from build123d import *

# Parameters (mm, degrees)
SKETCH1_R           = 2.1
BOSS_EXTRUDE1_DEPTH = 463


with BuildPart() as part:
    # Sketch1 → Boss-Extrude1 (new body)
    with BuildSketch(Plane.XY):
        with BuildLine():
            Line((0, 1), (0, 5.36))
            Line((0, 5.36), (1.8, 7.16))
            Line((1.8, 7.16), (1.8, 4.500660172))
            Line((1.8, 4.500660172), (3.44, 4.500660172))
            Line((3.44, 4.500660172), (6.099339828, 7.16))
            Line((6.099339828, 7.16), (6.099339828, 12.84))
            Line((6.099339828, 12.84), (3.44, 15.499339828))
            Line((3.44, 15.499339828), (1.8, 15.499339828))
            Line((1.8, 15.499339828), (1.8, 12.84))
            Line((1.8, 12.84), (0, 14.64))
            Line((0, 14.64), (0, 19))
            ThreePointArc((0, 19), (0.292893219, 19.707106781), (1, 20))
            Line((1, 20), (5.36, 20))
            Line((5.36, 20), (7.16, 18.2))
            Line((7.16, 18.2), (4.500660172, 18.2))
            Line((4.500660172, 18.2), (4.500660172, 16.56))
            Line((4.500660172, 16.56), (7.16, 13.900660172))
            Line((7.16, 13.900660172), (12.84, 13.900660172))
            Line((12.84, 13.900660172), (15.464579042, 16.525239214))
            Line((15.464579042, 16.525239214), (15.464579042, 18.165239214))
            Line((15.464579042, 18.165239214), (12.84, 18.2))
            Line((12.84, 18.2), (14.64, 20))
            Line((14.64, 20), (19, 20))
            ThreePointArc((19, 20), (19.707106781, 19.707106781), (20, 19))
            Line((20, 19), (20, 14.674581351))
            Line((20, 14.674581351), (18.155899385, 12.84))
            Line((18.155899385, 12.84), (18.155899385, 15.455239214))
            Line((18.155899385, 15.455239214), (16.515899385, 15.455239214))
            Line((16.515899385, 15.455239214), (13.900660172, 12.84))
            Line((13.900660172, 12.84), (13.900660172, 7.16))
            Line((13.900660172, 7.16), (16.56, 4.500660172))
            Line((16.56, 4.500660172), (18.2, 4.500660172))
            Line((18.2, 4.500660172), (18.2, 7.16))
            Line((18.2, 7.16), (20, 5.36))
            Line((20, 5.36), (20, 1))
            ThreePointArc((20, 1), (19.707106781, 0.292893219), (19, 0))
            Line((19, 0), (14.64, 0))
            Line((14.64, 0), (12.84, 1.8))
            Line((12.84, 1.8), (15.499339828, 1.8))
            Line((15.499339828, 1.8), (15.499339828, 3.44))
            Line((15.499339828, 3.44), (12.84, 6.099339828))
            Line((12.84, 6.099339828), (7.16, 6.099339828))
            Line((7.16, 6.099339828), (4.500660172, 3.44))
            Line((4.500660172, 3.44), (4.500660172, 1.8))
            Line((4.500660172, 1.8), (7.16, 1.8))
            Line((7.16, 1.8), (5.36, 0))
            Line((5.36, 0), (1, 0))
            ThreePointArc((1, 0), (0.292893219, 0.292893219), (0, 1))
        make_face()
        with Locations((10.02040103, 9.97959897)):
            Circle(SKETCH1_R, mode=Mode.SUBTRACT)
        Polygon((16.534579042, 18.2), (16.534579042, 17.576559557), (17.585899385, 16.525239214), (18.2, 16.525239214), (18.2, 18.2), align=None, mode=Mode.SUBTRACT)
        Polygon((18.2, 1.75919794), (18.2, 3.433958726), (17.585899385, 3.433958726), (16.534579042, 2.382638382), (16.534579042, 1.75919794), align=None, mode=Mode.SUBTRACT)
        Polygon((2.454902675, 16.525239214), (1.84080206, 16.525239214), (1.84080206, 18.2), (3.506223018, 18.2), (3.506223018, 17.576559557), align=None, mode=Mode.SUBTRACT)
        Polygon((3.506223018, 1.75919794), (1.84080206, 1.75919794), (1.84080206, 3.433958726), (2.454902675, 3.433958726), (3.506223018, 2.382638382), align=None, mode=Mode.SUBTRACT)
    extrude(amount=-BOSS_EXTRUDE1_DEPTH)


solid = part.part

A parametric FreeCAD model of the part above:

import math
import FreeCAD as App
import Part
import Sketcher

V = App.Vector
Q = App.Units.Quantity


def add_polygon(sketch, points):
    """Adds a closed chain of lines whose ends are joined by coincident constraints."""
    first, n = sketch.GeometryCount, len(points)
    for a, b in zip(points, points[1:] + points[:1]):
        sketch.addGeometry(Part.LineSegment(App.Vector(*a, 0), App.Vector(*b, 0)), False)
    for i in range(n):
        sketch.addConstraint(Sketcher.Constraint("Coincident", first + i, 2, first + (i + 1) % n, 1))

doc = App.newDocument("Part")
params = doc.addObject("Spreadsheet::Sheet", "Params")
for row, (alias, value) in enumerate([
    ("sketch1_radius", "1 mm"),
    ("sketch1_diameter", "4.2 mm"),
    ("sketch1_width", "4.36 mm"),
    ("sketch1_width2", "5.68 mm"),
    ("sketch1_width3", "1.64 mm"),
    ("pad1_length", "463 mm"),
], start=1):
    params.set(f"A{row}", alias)
    params.set(f"B{row}", "=" + value)
    params.setAlias(f"B{row}", alias)

body = doc.addObject("PartDesign::Body", "Body")

# Sketch on XY plane
sketch1 = body.newObject("Sketcher::SketchObject", "Sketch")
sketch1.AttachmentSupport = (doc.getObject("XY_Plane"), [""])
sketch1.MapMode = "FlatFace"
sketch1.addGeometry(Part.LineSegment(V(0, 5.36, 0), V(0, 1, 0)), False)  # 0
sketch1.addGeometry(Part.ArcOfCircle(Part.Circle(V(1, 1, 0), V(0, 0, 1), 1), math.radians(-180), math.radians(-90)), False)  # 1
sketch1.addGeometry(Part.LineSegment(V(1, 0, 0), V(5.36, 0, 0)), False)  # 2
sketch1.addGeometry(Part.LineSegment(V(5.36, 0, 0), V(7.16, 1.8, 0)), False)  # 3
sketch1.addGeometry(Part.LineSegment(V(7.16, 1.8, 0), V(4.50066, 1.8, 0)), False)  # 4
sketch1.addGeometry(Part.LineSegment(V(4.50066, 1.8, 0), V(4.50066, 3.44, 0)), False)  # 5
sketch1.addGeometry(Part.LineSegment(V(4.50066, 3.44, 0), V(7.16, 6.09934, 0)), False)  # 6
sketch1.addGeometry(Part.LineSegment(V(7.16, 6.09934, 0), V(12.84, 6.09934, 0)), False)  # 7
sketch1.addGeometry(Part.LineSegment(V(12.84, 6.09934, 0), V(15.49934, 3.44, 0)), False)  # 8
sketch1.addGeometry(Part.LineSegment(V(15.49934, 3.44, 0), V(15.49934, 1.8, 0)), False)  # 9
sketch1.addGeometry(Part.LineSegment(V(15.49934, 1.8, 0), V(12.84, 1.8, 0)), False)  # 10
sketch1.addGeometry(Part.LineSegment(V(12.84, 1.8, 0), V(14.64, 0, 0)), False)  # 11
sketch1.addGeometry(Part.LineSegment(V(14.64, 0, 0), V(19, 0, 0)), False)  # 12
sketch1.addGeometry(Part.ArcOfCircle(Part.Circle(V(19, 1, 0), V(0, 0, 1), 1), math.radians(-90), math.radians(0)), False)  # 13
sketch1.addGeometry(Part.LineSegment(V(20, 1, 0), V(20, 5.36, 0)), False)  # 14
sketch1.addGeometry(Part.LineSegment(V(20, 5.36, 0), V(18.2, 7.16, 0)), False)  # 15
sketch1.addGeometry(Part.LineSegment(V(18.2, 7.16, 0), V(18.2, 4.50066, 0)), False)  # 16
sketch1.addGeometry(Part.LineSegment(V(18.2, 4.50066, 0), V(16.56, 4.50066, 0)), False)  # 17
sketch1.addGeometry(Part.LineSegment(V(16.56, 4.50066, 0), V(13.90066, 7.16, 0)), False)  # 18
sketch1.addGeometry(Part.LineSegment(V(13.90066, 7.16, 0), V(13.90066, 12.84, 0)), False)  # 19
sketch1.addGeometry(Part.LineSegment(V(13.90066, 12.84, 0), V(16.515899, 15.455239, 0)), False)  # 20
sketch1.addGeometry(Part.LineSegment(V(16.515899, 15.455239, 0), V(18.155899, 15.455239, 0)), False)  # 21
sketch1.addGeometry(Part.LineSegment(V(18.155899, 15.455239, 0), V(18.155899, 12.84, 0)), False)  # 22
sketch1.addGeometry(Part.LineSegment(V(18.155899, 12.84, 0), V(20, 14.674581, 0)), False)  # 23
sketch1.addGeometry(Part.LineSegment(V(20, 14.674581, 0), V(20, 19, 0)), False)  # 24
sketch1.addGeometry(Part.ArcOfCircle(Part.Circle(V(19, 19, 0), V(0, 0, 1), 1), math.radians(0), math.radians(90)), False)  # 25
sketch1.addGeometry(Part.LineSegment(V(19, 20, 0), V(14.64, 20, 0)), False)  # 26
sketch1.addGeometry(Part.LineSegment(V(14.64, 20, 0), V(12.84, 18.2, 0)), False)  # 27
sketch1.addGeometry(Part.LineSegment(V(12.84, 18.2, 0), V(15.464579, 18.165239, 0)), False)  # 28
sketch1.addGeometry(Part.LineSegment(V(15.464579, 18.165239, 0), V(15.464579, 16.525239, 0)), False)  # 29
sketch1.addGeometry(Part.LineSegment(V(15.464579, 16.525239, 0), V(12.84, 13.90066, 0)), False)  # 30
sketch1.addGeometry(Part.LineSegment(V(12.84, 13.90066, 0), V(7.16, 13.90066, 0)), False)  # 31
sketch1.addGeometry(Part.LineSegment(V(7.16, 13.90066, 0), V(4.50066, 16.56, 0)), False)  # 32
sketch1.addGeometry(Part.LineSegment(V(4.50066, 16.56, 0), V(4.50066, 18.2, 0)), False)  # 33
sketch1.addGeometry(Part.LineSegment(V(4.50066, 18.2, 0), V(7.16, 18.2, 0)), False)  # 34
sketch1.addGeometry(Part.LineSegment(V(7.16, 18.2, 0), V(5.36, 20, 0)), False)  # 35
sketch1.addGeometry(Part.LineSegment(V(5.36, 20, 0), V(1, 20, 0)), False)  # 36
sketch1.addGeometry(Part.ArcOfCircle(Part.Circle(V(1, 19, 0), V(0, 0, 1), 1), math.radians(90), math.radians(180)), False)  # 37
sketch1.addGeometry(Part.LineSegment(V(0, 19, 0), V(0, 14.64, 0)), False)  # 38
sketch1.addGeometry(Part.LineSegment(V(0, 14.64, 0), V(1.8, 12.84, 0)), False)  # 39
sketch1.addGeometry(Part.LineSegment(V(1.8, 12.84, 0), V(1.8, 15.49934, 0)), False)  # 40
sketch1.addGeometry(Part.LineSegment(V(1.8, 15.49934, 0), V(3.44, 15.49934, 0)), False)  # 41
sketch1.addGeometry(Part.LineSegment(V(3.44, 15.49934, 0), V(6.09934, 12.84, 0)), False)  # 42
sketch1.addGeometry(Part.LineSegment(V(6.09934, 12.84, 0), V(6.09934, 7.16, 0)), False)  # 43
sketch1.addGeometry(Part.LineSegment(V(6.09934, 7.16, 0), V(3.44, 4.50066, 0)), False)  # 44
sketch1.addGeometry(Part.LineSegment(V(3.44, 4.50066, 0), V(1.8, 4.50066, 0)), False)  # 45
sketch1.addGeometry(Part.LineSegment(V(1.8, 4.50066, 0), V(1.8, 7.16, 0)), False)  # 46
sketch1.addGeometry(Part.LineSegment(V(1.8, 7.16, 0), V(0, 5.36, 0)), False)  # 47
add_polygon(sketch1, [(18.2, 1.759198), (16.534579, 1.759198), (16.534579, 2.382638), (17.585899, 3.433959), (18.2, 3.433959)])  # lines 48-52
add_polygon(sketch1, [(3.506223, 1.759198), (1.840802, 1.759198), (1.840802, 3.433959), (2.454903, 3.433959), (3.506223, 2.382638)])  # lines 53-57
sketch1.addGeometry(Part.Circle(V(10.020401, 9.979599, 0), V(0, 0, 1), 2.1), False)  # 58
add_polygon(sketch1, [(16.534579, 18.2), (18.2, 18.2), (18.2, 16.525239), (17.585899, 16.525239), (16.534579, 17.57656)])  # lines 59-63
add_polygon(sketch1, [(2.454903, 16.525239), (1.840802, 16.525239), (1.840802, 18.2), (3.506223, 18.2), (3.506223, 17.57656)])  # lines 64-68
sketch1.addConstraint([
    Sketcher.Constraint("Tangent", 0, 2, 1, 1),
    Sketcher.Constraint("Tangent", 1, 2, 2, 1),
    Sketcher.Constraint("Coincident", 2, 2, 3, 1),
    Sketcher.Constraint("Coincident", 3, 2, 4, 1),
    Sketcher.Constraint("Coincident", 4, 2, 5, 1),
    Sketcher.Constraint("Coincident", 5, 2, 6, 1),
    Sketcher.Constraint("Coincident", 6, 2, 7, 1),
    Sketcher.Constraint("Coincident", 7, 2, 8, 1),
    Sketcher.Constraint("Coincident", 8, 2, 9, 1),
    Sketcher.Constraint("Coincident", 9, 2, 10, 1),
    Sketcher.Constraint("Coincident", 10, 2, 11, 1),
    Sketcher.Constraint("Coincident", 11, 2, 12, 1),
    Sketcher.Constraint("Tangent", 12, 2, 13, 1),
    Sketcher.Constraint("Tangent", 13, 2, 14, 1),
    Sketcher.Constraint("Coincident", 14, 2, 15, 1),
    Sketcher.Constraint("Coincident", 15, 2, 16, 1),
    Sketcher.Constraint("Coincident", 16, 2, 17, 1),
    Sketcher.Constraint("Coincident", 17, 2, 18, 1),
    Sketcher.Constraint("Coincident", 18, 2, 19, 1),
    Sketcher.Constraint("Coincident", 19, 2, 20, 1),
    Sketcher.Constraint("Coincident", 20, 2, 21, 1),
    Sketcher.Constraint("Coincident", 21, 2, 22, 1),
    Sketcher.Constraint("Coincident", 22, 2, 23, 1),
    Sketcher.Constraint("Coincident", 23, 2, 24, 1),
    Sketcher.Constraint("Tangent", 24, 2, 25, 1),
    Sketcher.Constraint("Tangent", 25, 2, 26, 1),
    Sketcher.Constraint("Coincident", 26, 2, 27, 1),
    Sketcher.Constraint("Coincident", 27, 2, 28, 1),
    Sketcher.Constraint("Coincident", 28, 2, 29, 1),
    Sketcher.Constraint("Coincident", 29, 2, 30, 1),
    Sketcher.Constraint("Coincident", 30, 2, 31, 1),
    Sketcher.Constraint("Coincident", 31, 2, 32, 1),
    Sketcher.Constraint("Coincident", 32, 2, 33, 1),
    Sketcher.Constraint("Coincident", 33, 2, 34, 1),
    Sketcher.Constraint("Coincident", 34, 2, 35, 1),
    Sketcher.Constraint("Coincident", 35, 2, 36, 1),
    Sketcher.Constraint("Tangent", 36, 2, 37, 1),
    Sketcher.Constraint("Tangent", 37, 2, 38, 1),
    Sketcher.Constraint("Coincident", 38, 2, 39, 1),
    Sketcher.Constraint("Coincident", 39, 2, 40, 1),
    Sketcher.Constraint("Coincident", 40, 2, 41, 1),
    Sketcher.Constraint("Coincident", 41, 2, 42, 1),
    Sketcher.Constraint("Coincident", 42, 2, 43, 1),
    Sketcher.Constraint("Coincident", 43, 2, 44, 1),
    Sketcher.Constraint("Coincident", 44, 2, 45, 1),
    Sketcher.Constraint("Coincident", 45, 2, 46, 1),
    Sketcher.Constraint("Coincident", 46, 2, 47, 1),
    Sketcher.Constraint("Coincident", 47, 2, 0, 1),
    Sketcher.Constraint("Vertical", 0),
    Sketcher.Constraint("Horizontal", 2),
    Sketcher.Constraint("Horizontal", 4),
    Sketcher.Constraint("Vertical", 5),
    Sketcher.Constraint("Horizontal", 7),
    Sketcher.Constraint("Vertical", 9),
    Sketcher.Constraint("Horizontal", 10),
    Sketcher.Constraint("Horizontal", 12),
    Sketcher.Constraint("Vertical", 14),
    Sketcher.Constraint("Vertical", 16),
    Sketcher.Constraint("Horizontal", 17),
    Sketcher.Constraint("Vertical", 19),
    Sketcher.Constraint("Horizontal", 21),
    Sketcher.Constraint("Vertical", 22),
    Sketcher.Constraint("Vertical", 24),
    Sketcher.Constraint("Horizontal", 26),
    Sketcher.Constraint("Vertical", 29),
    Sketcher.Constraint("Horizontal", 31),
    Sketcher.Constraint("Vertical", 33),
    Sketcher.Constraint("Horizontal", 34),
    Sketcher.Constraint("Horizontal", 36),
    Sketcher.Constraint("Vertical", 38),
    Sketcher.Constraint("Vertical", 40),
    Sketcher.Constraint("Horizontal", 41),
    Sketcher.Constraint("Vertical", 43),
    Sketcher.Constraint("Horizontal", 45),
    Sketcher.Constraint("Vertical", 46),
    Sketcher.Constraint("Horizontal", 48),
    Sketcher.Constraint("Vertical", 49),
    Sketcher.Constraint("Horizontal", 51),
    Sketcher.Constraint("Vertical", 52),
    Sketcher.Constraint("Horizontal", 53),
    Sketcher.Constraint("Vertical", 54),
    Sketcher.Constraint("Horizontal", 55),
    Sketcher.Constraint("Vertical", 57),
    Sketcher.Constraint("Horizontal", 59),
    Sketcher.Constraint("Vertical", 60),
    Sketcher.Constraint("Horizontal", 61),
    Sketcher.Constraint("Vertical", 63),
    Sketcher.Constraint("Horizontal", 64),
    Sketcher.Constraint("Vertical", 65),
    Sketcher.Constraint("Horizontal", 66),
    Sketcher.Constraint("Vertical", 67),
    Sketcher.Constraint("Equal", 1, 13),
    Sketcher.Constraint("Equal", 13, 25),
    Sketcher.Constraint("Equal", 25, 37),
    Sketcher.Constraint("PointOnObject", 0, 2, -2),
    Sketcher.Constraint("PointOnObject", 1, 2, -1),
    Sketcher.Constraint("PointOnObject", 11, 2, -1),
    Sketcher.Constraint("PointOnObject", 37, 2, -2),
    Sketcher.Constraint("Parallel", 3, 6),
    Sketcher.Constraint("Perpendicular", 6, 8),
    Sketcher.Constraint("Parallel", 8, 11),
    Sketcher.Constraint("Parallel", 11, 15),
    Sketcher.Constraint("Parallel", 15, 18),
    Sketcher.Constraint("Perpendicular", 18, 20),
    Sketcher.Constraint("Parallel", 20, 27),
    Sketcher.Constraint("Parallel", 27, 30),
    Sketcher.Constraint("Perpendicular", 30, 32),
    Sketcher.Constraint("Parallel", 32, 35),
    Sketcher.Constraint("Parallel", 35, 39),
    Sketcher.Constraint("Parallel", 39, 42),
    Sketcher.Constraint("Perpendicular", 42, 44),
    Sketcher.Constraint("Parallel", 44, 47),
    Sketcher.Constraint("Parallel", 47, 50),
    Sketcher.Constraint("Perpendicular", 50, 56),
    Sketcher.Constraint("Parallel", 56, 62),
    Sketcher.Constraint("Perpendicular", 62, 68),
    Sketcher.Constraint("Horizontal", 25, 3, 37, 3),
    Sketcher.Constraint("Horizontal", 5, 2, 8, 2),
    Sketcher.Constraint("Horizontal", 4, 2, 9, 2),
    Sketcher.Constraint("Horizontal", 15, 2, 18, 2),
    Sketcher.Constraint("Horizontal", 19, 2, 22, 2),
    Sketcher.Constraint("Horizontal", 27, 2, 33, 2),
    Sketcher.Constraint("Horizontal", 22, 2, 39, 2),
    Sketcher.Constraint("Horizontal", 39, 2, 42, 2),
    Sketcher.Constraint("Horizontal", 18, 2, 43, 2),
    Sketcher.Constraint("Horizontal", 17, 2, 44, 2),
    Sketcher.Constraint("Horizontal", 43, 2, 46, 2),
    Sketcher.Constraint("Horizontal", 14, 2, 47, 2),
    Sketcher.Constraint("Horizontal", 52, 2, 53, 2),
    Sketcher.Constraint("Horizontal", 51, 2, 54, 2),
    Sketcher.Constraint("Horizontal", 49, 2, 56, 2),
    Sketcher.Constraint("Horizontal", 34, 2, 59, 2),
    Sketcher.Constraint("Horizontal", 29, 2, 60, 2),
    Sketcher.Constraint("Horizontal", 61, 2, 64, 2),
    Sketcher.Constraint("Horizontal", 63, 2, 65, 2),
    Sketcher.Constraint("Horizontal", 62, 2, 67, 2),
    Sketcher.Constraint("Vertical", 13, 3, 25, 3),
    Sketcher.Constraint("Vertical", 3, 2, 6, 2),
    Sketcher.Constraint("Vertical", 7, 2, 10, 2),
    Sketcher.Constraint("Vertical", 11, 2, 26, 2),
    Sketcher.Constraint("Vertical", 10, 2, 27, 2),
    Sketcher.Constraint("Vertical", 27, 2, 30, 2),
    Sketcher.Constraint("Vertical", 6, 2, 31, 2),
    Sketcher.Constraint("Vertical", 5, 2, 32, 2),
    Sketcher.Constraint("Vertical", 31, 2, 34, 2),
    Sketcher.Constraint("Vertical", 2, 2, 35, 2),
    Sketcher.Constraint("Vertical", 41, 2, 44, 2),
    Sketcher.Constraint("Vertical", 40, 2, 45, 2),
    Sketcher.Constraint("Vertical", 16, 2, 51, 2),
    Sketcher.Constraint("Vertical", 52, 2, 59, 2),
    Sketcher.Constraint("Vertical", 50, 2, 61, 2),
    Sketcher.Constraint("Vertical", 49, 2, 62, 2),
    Sketcher.Constraint("Vertical", 54, 2, 64, 2),
    Sketcher.Constraint("Vertical", 57, 2, 66, 2),
    Sketcher.Constraint("Equal", 2, 12),
    Sketcher.Constraint("Equal", 17, 21),
    Sketcher.Constraint("Equal", 21, 41),
    Sketcher.Constraint("Equal", 48, 53),
    Sketcher.Constraint("Equal", 36, 0),
    Sketcher.Constraint("Equal", 45, 5),
    Sketcher.Constraint("Equal", 34, 16),
    Sketcher.Constraint("Equal", 31, 19),
    Sketcher.Constraint("Equal", 9, 29),
    Sketcher.Constraint("Equal", 29, 33),
    Sketcher.Constraint("Equal", 14, 38),
    Sketcher.Constraint("Equal", 54, 60),
    Sketcher.Constraint("Equal", 11, 15),
    Sketcher.Constraint("Radius", 1, Q("1 mm")),
    Sketcher.Constraint("Diameter", 58, Q("4.2 mm")),
    Sketcher.Constraint("DistanceX", -1, 1, 13, 3, Q("19 mm")),
    Sketcher.Constraint("DistanceX", 2, 1, 2, 2, Q("4.36 mm")),
    Sketcher.Constraint("DistanceX", 7, 1, 7, 2, Q("5.68 mm")),
    Sketcher.Constraint("DistanceX", 17, 2, 17, 1, Q("1.64 mm")),
    Sketcher.Constraint("DistanceX", 51, 1, 51, 2, Q("0.614101 mm")),
    Sketcher.Constraint("DistanceX", 4, 2, 4, 1, Q("2.65934 mm")),
    Sketcher.Constraint("DistanceX", 48, 2, 48, 1, Q("1.665421 mm")),
    Sketcher.Constraint("DistanceY", 22, 2, 22, 1, Q("2.615239 mm")),
    Sketcher.Constraint("DistanceY", 24, 1, 24, 2, Q("4.325419 mm")),
    Sketcher.Constraint("DistanceY", 49, 1, 49, 2, Q("0.62344 mm")),
    Sketcher.Constraint("DistanceX", -1, 1, 58, 3, Q("10.020401 mm")),
    Sketcher.Constraint("DistanceY", -1, 1, 58, 3, Q("9.979599 mm")),
    Sketcher.Constraint("DistanceY", -1, 1, 49, 2, Q("2.382638 mm")),
    Sketcher.Constraint("DistanceX", -1, 1, 53, 2, Q("1.840802 mm")),
])
sketch1.setExpression("Constraints[187]", "Params.sketch1_radius")
sketch1.setExpression("Constraints[188]", "Params.sketch1_diameter")
sketch1.setExpression("Constraints[190]", "Params.sketch1_width")
sketch1.setExpression("Constraints[191]", "Params.sketch1_width2")
sketch1.setExpression("Constraints[192]", "Params.sketch1_width3")
pad1 = body.newObject("PartDesign::Pad", "Pad")
pad1.Profile = sketch1
pad1.setExpression("Length", "Params.pad1_length")
pad1.Reversed = True

doc.recompute()
